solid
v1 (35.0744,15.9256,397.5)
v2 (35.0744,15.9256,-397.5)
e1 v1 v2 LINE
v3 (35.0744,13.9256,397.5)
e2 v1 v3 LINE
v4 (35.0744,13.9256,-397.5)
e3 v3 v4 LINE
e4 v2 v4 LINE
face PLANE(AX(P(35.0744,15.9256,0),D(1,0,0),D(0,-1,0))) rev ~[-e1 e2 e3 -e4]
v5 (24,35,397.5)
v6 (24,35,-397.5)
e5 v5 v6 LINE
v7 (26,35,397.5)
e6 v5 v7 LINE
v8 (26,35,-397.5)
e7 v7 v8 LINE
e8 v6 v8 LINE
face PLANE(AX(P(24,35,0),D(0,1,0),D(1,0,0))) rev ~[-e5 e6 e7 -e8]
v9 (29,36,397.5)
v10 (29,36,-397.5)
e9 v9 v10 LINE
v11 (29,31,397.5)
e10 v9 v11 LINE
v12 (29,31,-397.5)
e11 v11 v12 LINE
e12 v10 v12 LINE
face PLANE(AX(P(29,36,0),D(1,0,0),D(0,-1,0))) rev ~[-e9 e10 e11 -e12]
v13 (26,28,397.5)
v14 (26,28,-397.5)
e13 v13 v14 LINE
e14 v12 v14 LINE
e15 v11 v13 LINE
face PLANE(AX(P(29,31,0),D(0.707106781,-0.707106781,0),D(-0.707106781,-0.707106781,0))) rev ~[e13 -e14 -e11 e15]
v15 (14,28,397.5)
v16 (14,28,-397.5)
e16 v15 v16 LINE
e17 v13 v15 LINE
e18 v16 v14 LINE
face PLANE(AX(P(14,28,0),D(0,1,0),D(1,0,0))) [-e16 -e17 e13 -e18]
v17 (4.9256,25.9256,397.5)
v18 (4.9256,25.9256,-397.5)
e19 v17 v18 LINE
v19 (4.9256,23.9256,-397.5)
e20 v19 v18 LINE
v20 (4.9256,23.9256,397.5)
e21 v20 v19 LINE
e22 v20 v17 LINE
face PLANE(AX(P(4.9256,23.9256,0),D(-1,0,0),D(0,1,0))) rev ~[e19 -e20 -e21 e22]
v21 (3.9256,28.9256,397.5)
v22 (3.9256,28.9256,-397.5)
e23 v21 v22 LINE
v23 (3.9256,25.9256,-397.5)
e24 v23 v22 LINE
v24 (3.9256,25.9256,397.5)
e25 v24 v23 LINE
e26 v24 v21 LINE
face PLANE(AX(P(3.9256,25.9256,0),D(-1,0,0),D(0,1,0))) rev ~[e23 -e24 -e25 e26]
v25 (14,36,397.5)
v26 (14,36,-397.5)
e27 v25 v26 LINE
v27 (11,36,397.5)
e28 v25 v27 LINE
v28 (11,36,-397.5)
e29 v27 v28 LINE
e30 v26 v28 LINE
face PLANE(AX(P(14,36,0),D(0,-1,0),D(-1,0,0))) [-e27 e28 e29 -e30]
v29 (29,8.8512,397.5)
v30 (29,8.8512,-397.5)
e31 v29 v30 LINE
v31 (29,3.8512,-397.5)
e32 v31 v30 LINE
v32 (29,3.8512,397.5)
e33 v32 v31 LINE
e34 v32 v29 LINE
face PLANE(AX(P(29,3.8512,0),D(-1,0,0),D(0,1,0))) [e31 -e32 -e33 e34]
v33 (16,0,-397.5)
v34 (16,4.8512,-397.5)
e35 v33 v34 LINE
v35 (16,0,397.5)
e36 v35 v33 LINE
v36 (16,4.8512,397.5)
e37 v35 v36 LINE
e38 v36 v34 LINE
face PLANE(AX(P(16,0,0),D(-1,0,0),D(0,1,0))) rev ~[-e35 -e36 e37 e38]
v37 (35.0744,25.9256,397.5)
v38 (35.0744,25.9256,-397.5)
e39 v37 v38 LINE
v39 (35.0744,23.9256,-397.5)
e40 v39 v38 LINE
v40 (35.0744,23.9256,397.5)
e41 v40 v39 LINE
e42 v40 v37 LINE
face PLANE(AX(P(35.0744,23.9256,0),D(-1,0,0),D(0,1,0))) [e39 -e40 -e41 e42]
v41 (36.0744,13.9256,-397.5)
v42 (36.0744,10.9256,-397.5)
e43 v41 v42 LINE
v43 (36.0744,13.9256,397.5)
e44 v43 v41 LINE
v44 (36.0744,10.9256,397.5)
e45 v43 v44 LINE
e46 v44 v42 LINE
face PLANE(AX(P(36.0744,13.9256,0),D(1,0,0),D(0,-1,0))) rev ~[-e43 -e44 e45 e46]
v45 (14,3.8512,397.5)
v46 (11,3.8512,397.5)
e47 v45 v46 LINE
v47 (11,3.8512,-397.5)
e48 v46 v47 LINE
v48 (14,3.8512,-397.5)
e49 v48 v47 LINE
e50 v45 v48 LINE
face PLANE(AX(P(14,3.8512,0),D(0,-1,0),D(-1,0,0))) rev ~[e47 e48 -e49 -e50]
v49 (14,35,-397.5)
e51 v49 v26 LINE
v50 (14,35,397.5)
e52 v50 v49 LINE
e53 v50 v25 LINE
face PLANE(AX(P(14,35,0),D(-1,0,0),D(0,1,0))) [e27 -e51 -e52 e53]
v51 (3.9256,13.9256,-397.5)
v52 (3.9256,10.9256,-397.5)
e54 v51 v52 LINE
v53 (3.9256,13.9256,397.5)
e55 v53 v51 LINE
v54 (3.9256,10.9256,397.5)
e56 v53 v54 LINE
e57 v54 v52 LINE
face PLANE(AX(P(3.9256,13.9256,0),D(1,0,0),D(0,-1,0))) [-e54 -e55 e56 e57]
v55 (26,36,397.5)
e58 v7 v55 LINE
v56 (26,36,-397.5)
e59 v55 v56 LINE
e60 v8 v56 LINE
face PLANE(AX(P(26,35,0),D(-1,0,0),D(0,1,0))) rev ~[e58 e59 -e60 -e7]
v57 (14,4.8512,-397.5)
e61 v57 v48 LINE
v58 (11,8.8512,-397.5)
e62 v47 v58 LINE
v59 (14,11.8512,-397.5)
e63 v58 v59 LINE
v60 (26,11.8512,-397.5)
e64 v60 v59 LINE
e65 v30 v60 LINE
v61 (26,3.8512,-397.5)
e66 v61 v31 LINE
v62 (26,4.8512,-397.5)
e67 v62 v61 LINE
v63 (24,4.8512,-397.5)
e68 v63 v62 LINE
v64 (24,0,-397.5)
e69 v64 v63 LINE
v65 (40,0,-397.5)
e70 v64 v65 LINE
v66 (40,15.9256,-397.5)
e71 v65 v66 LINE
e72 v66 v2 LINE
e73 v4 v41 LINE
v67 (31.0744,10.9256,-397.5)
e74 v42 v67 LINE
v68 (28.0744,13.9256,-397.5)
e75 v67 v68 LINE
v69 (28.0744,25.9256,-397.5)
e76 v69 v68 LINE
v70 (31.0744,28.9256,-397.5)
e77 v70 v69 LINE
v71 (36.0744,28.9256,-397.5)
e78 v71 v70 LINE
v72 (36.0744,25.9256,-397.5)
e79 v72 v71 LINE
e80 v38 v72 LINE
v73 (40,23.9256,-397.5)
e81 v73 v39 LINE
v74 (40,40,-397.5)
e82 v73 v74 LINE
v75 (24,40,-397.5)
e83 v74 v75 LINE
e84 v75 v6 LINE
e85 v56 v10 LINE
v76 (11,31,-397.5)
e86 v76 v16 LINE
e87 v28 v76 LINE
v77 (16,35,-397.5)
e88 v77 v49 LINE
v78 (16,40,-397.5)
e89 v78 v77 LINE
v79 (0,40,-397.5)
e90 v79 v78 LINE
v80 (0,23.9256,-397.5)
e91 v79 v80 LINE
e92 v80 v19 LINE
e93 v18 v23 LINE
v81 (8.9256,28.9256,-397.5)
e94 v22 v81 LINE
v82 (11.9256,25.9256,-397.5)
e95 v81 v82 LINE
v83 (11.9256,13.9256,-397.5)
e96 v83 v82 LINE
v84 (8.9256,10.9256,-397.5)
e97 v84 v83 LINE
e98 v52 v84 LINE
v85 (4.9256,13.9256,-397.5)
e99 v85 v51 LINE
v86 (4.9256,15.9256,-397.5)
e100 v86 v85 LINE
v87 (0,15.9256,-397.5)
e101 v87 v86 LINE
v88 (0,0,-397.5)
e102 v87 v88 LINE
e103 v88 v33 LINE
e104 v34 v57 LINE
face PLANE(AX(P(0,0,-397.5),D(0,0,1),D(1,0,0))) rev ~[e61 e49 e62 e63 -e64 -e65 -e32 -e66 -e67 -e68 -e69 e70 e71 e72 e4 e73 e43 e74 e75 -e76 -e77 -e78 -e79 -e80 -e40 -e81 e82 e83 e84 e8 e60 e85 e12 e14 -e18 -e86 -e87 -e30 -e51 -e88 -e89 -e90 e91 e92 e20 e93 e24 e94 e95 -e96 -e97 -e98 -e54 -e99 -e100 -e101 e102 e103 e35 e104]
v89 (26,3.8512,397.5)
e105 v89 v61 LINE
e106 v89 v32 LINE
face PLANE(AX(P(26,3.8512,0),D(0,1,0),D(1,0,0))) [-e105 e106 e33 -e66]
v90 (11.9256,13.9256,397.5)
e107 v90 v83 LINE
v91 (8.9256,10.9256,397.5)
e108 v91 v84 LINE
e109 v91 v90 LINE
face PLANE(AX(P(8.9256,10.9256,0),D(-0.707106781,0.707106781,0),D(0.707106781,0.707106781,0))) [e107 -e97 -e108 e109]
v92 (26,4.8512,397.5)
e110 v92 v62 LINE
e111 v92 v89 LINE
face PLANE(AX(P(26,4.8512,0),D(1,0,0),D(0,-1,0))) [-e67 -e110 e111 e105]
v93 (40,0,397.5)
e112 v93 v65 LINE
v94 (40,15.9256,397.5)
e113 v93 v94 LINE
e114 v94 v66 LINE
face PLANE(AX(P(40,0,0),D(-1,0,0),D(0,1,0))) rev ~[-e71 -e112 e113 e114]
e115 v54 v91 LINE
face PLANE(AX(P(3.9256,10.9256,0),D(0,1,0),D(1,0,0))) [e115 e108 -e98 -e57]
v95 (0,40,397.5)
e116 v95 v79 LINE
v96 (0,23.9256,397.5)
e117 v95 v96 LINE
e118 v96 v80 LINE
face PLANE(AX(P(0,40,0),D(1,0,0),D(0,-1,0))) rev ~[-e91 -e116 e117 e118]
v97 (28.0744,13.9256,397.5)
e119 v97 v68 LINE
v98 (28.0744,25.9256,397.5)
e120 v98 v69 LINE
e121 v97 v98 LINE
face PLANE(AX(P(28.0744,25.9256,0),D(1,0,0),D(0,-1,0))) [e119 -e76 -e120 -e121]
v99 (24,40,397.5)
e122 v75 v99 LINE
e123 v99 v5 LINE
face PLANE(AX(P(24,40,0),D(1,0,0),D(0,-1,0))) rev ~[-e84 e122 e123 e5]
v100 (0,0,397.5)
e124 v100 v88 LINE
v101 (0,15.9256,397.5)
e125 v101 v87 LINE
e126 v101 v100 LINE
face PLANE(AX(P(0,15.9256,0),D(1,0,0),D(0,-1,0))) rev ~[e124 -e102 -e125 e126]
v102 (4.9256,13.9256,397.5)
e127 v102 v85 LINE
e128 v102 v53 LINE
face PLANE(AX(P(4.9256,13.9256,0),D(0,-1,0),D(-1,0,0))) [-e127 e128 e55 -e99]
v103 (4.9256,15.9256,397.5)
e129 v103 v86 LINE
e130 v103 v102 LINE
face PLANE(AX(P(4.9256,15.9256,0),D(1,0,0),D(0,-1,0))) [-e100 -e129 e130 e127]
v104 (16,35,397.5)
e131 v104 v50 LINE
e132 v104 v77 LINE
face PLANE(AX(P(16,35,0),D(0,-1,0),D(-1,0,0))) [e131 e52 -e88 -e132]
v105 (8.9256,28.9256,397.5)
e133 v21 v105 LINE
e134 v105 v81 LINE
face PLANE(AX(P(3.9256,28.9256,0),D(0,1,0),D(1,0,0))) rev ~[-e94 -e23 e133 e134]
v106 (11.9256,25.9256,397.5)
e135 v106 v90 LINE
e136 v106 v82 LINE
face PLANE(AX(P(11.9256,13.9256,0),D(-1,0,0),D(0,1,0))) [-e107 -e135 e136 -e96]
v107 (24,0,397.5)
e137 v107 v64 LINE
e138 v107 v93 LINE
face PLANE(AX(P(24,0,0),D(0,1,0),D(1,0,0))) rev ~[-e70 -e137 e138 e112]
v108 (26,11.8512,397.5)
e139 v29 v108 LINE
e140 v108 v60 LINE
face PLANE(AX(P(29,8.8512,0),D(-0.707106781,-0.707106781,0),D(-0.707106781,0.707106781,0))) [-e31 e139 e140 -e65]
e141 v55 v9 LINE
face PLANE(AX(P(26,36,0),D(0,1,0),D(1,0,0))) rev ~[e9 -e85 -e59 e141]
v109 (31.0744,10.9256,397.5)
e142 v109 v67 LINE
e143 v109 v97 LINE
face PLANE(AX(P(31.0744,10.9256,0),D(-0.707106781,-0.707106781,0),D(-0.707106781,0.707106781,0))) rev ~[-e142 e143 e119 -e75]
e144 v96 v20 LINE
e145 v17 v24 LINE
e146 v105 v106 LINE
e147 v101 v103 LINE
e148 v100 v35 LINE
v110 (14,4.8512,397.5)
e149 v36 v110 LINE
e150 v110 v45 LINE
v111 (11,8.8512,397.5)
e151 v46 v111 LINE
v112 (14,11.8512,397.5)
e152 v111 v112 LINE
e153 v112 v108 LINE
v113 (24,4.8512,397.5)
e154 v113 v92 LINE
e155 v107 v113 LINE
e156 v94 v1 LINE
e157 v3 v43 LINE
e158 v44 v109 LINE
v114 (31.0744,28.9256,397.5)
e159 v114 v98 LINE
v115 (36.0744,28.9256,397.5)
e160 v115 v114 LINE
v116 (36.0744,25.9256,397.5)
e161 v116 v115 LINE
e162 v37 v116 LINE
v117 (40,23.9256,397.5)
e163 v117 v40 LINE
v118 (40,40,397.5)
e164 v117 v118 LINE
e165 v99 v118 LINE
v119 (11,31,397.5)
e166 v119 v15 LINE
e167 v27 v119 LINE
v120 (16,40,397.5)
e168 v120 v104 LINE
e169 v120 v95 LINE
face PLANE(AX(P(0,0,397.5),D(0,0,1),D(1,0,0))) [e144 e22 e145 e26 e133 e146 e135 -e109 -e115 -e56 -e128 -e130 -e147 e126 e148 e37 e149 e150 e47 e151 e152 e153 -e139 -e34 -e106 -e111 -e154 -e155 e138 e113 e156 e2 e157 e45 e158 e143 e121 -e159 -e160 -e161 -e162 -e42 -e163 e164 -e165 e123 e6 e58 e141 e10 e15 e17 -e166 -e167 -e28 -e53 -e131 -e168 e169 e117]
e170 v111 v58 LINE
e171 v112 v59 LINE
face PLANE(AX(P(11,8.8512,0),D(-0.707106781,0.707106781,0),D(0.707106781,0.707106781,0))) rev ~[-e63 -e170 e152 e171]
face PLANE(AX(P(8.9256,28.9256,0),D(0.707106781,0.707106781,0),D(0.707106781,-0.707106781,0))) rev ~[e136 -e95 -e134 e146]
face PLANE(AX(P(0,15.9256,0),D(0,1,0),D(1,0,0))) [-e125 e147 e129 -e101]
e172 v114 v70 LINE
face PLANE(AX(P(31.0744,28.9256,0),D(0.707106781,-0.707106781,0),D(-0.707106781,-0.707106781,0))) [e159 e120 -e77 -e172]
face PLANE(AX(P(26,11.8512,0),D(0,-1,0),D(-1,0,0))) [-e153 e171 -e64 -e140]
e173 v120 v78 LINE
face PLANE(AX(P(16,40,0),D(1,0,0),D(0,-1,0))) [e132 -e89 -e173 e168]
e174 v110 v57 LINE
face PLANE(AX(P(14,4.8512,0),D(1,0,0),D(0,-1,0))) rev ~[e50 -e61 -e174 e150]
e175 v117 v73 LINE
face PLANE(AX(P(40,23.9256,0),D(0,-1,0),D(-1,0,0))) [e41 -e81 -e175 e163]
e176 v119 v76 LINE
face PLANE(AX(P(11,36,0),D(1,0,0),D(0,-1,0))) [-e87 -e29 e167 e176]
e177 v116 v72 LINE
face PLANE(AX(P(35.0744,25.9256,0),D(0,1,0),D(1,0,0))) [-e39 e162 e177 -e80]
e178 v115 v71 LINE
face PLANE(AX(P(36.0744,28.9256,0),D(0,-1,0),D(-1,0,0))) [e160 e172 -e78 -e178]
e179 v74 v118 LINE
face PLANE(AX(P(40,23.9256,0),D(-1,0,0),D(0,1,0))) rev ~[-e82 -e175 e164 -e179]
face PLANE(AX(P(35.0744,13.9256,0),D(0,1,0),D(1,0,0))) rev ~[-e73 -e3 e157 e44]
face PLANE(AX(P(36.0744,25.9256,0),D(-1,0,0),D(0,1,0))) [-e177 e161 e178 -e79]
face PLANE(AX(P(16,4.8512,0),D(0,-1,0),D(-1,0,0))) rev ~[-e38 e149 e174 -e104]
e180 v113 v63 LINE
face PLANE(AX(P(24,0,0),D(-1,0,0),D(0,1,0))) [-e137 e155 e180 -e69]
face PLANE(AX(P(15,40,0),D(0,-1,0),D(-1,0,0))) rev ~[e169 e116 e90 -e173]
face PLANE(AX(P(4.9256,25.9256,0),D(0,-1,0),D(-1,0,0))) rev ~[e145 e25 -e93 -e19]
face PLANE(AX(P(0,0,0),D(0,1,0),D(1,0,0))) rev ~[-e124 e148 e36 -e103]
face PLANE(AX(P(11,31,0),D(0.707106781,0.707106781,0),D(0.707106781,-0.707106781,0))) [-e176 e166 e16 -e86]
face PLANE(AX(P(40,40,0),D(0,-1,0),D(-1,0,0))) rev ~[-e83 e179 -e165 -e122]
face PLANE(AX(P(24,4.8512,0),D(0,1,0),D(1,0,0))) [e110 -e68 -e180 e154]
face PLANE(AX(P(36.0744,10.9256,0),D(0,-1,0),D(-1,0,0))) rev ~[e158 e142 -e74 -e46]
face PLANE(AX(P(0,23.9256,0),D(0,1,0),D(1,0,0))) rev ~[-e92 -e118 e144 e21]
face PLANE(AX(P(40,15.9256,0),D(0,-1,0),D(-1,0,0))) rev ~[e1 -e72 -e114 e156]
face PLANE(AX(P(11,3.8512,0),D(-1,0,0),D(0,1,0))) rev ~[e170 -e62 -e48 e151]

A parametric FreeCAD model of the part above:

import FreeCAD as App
import Part
import Sketcher

V = App.Vector
Q = App.Units.Quantity


def add_polygon(sketch, points):
    """Adds a closed chain of lines whose ends are joined by coincident constraints."""
    first, n = sketch.GeometryCount, len(points)
    for a, b in zip(points, points[1:] + points[:1]):
        sketch.addGeometry(Part.LineSegment(App.Vector(*a, 0), App.Vector(*b, 0)), False)
    for i in range(n):
        sketch.addConstraint(Sketcher.Constraint("Coincident", first + i, 2, first + (i + 1) % n, 1))

doc = App.newDocument("Part")
body = doc.addObject("PartDesign::Body", "Body")

# Sketch on XY plane
sketch1 = doc.addObject("Sketcher::SketchObject", "Sketch")
body.addObject(sketch1)
sketch1.AttachmentSupport = (doc.XY_Plane, [""])
sketch1.MapMode = "FlatFace"
add_polygon(sketch1, [(40, 23.9), (40, 40), (24, 40), (24, 35), (26, 35), (26, 36), (29, 36), (29, 31), (26, 28), (14, 28), (11, 31), (11, 36), (14, 36), (14, 35), (16, 35), (16, 40), (0, 40), (0, 23.9), (4.9, 23.9), (4.9, 25.9), (3.9, 25.9), (3.9, 28.9), (8.9, 28.9), (11.9, 25.9), (11.9, 13.9), (8.9, 10.9), (3.9, 10.9), (3.9, 13.9), (4.9, 13.9), (4.9, 15.9), (0, 15.9), (0, 0), (16, 0), (16, 4.9), (14, 4.9), (14, 3.9), (11, 3.9), (11, 8.9), (14, 11.9), (26, 11.9), (29, 8.9), (29, 3.9), (26, 3.9), (26, 4.9), (24, 4.9), (24, 0), (40, 0), (40, 15.9), (35.1, 15.9), (35.1, 13.9), (36.1, 13.9), (36.1, 10.9), (31.1, 10.9), (28.1, 13.9), (28.1, 25.9), (31.1, 28.9), (36.1, 28.9), (36.1, 25.9), (35.1, 25.9), (35.1, 23.9)])  # lines 0-59
sketch1.addConstraint([
    Sketcher.Constraint("Vertical", 0),
    Sketcher.Constraint("Horizontal", 1),
    Sketcher.Constraint("Vertical", 2),
    Sketcher.Constraint("Horizontal", 3),
    Sketcher.Constraint("Vertical", 4),
    Sketcher.Constraint("Horizontal", 5),
    Sketcher.Constraint("Vertical", 6),
    Sketcher.Constraint("Horizontal", 8),
    Sketcher.Constraint("Vertical", 10),
    Sketcher.Constraint("Horizontal", 11),
    Sketcher.Constraint("Vertical", 12),
    Sketcher.Constraint("Horizontal", 13),
    Sketcher.Constraint("Vertical", 14),
    Sketcher.Constraint("Horizontal", 15),
    Sketcher.Constraint("Vertical", 16),
    Sketcher.Constraint("Horizontal", 17),
    Sketcher.Constraint("Vertical", 18),
    Sketcher.Constraint("Horizontal", 19),
    Sketcher.Constraint("Vertical", 20),
    Sketcher.Constraint("Horizontal", 21),
    Sketcher.Constraint("Vertical", 23),
    Sketcher.Constraint("Horizontal", 25),
    Sketcher.Constraint("Vertical", 26),
    Sketcher.Constraint("Horizontal", 27),
    Sketcher.Constraint("Vertical", 28),
    Sketcher.Constraint("Horizontal", 29),
    Sketcher.Constraint("Vertical", 30),
    Sketcher.Constraint("Horizontal", 31),
    Sketcher.Constraint("Vertical", 32),
    Sketcher.Constraint("Horizontal", 33),
    Sketcher.Constraint("Vertical", 34),
    Sketcher.Constraint("Horizontal", 35),
    Sketcher.Constraint("Vertical", 36),
    Sketcher.Constraint("Horizontal", 38),
    Sketcher.Constraint("Vertical", 40),
    Sketcher.Constraint("Horizontal", 41),
    Sketcher.Constraint("Vertical", 42),
    Sketcher.Constraint("Horizontal", 43),
    Sketcher.Constraint("Vertical", 44),
    Sketcher.Constraint("Horizontal", 45),
    Sketcher.Constraint("Vertical", 46),
    Sketcher.Constraint("Horizontal", 47),
    Sketcher.Constraint("Vertical", 48),
    Sketcher.Constraint("Horizontal", 49),
    Sketcher.Constraint("Vertical", 50),
    Sketcher.Constraint("Horizontal", 51),
    Sketcher.Constraint("Vertical", 53),
    Sketcher.Constraint("Horizontal", 55),
    Sketcher.Constraint("Vertical", 56),
    Sketcher.Constraint("Horizontal", 57),
    Sketcher.Constraint("Vertical", 58),
    Sketcher.Constraint("Horizontal", 59),
    Sketcher.Constraint("Coincident", 30, 2, -1, 1),
    Sketcher.Constraint("PointOnObject", 15, 2, -2),
    Sketcher.Constraint("PointOnObject", 44, 2, -1),
    Sketcher.Constraint("Perpendicular", 7, 9),
    Sketcher.Constraint("Parallel", 9, 22),
    Sketcher.Constraint("Perpendicular", 22, 24),
    Sketcher.Constraint("Parallel", 24, 37),
    Sketcher.Constraint("Perpendicular", 37, 39),
    Sketcher.Constraint("Parallel", 39, 52),
    Sketcher.Constraint("Perpendicular", 52, 54),
    Sketcher.Constraint("Horizontal", 6, 2, 9, 2),
    Sketcher.Constraint("Horizontal", 5, 2, 10, 2),
    Sketcher.Constraint("Horizontal", 3, 2, 12, 2),
    Sketcher.Constraint("Horizontal", 1, 2, 14, 2),
    Sketcher.Constraint("Horizontal", 19, 2, 22, 2),
    Sketcher.Constraint("Horizontal", 23, 2, 26, 2),
    Sketcher.Constraint("Horizontal", 36, 2, 39, 2),
    Sketcher.Constraint("Horizontal", 35, 2, 40, 2),
    Sketcher.Constraint("Horizontal", 33, 2, 42, 2),
    Sketcher.Constraint("Horizontal", 29, 2, 46, 2),
    Sketcher.Constraint("Horizontal", 27, 2, 48, 2),
    Sketcher.Constraint("Horizontal", 25, 2, 50, 2),
    Sketcher.Constraint("Horizontal", 49, 2, 52, 2),
    Sketcher.Constraint("Horizontal", 22, 2, 53, 2),
    Sketcher.Constraint("Horizontal", 21, 2, 54, 2),
    Sketcher.Constraint("Horizontal", 53, 2, 56, 2),
    Sketcher.Constraint("Horizontal", 17, 2, 58, 2),
    Sketcher.Constraint("Vertical", 4, 2, 7, 2),
    Sketcher.Constraint("Vertical", 8, 2, 11, 2),
    Sketcher.Constraint("Vertical", 21, 2, 24, 2),
    Sketcher.Constraint("Vertical", 20, 2, 25, 2),
    Sketcher.Constraint("Vertical", 18, 2, 27, 2),
    Sketcher.Constraint("Vertical", 14, 2, 31, 2),
    Sketcher.Constraint("Vertical", 12, 2, 33, 2),
    Sketcher.Constraint("Vertical", 10, 2, 35, 2),
    Sketcher.Constraint("Vertical", 34, 2, 37, 2),
    Sketcher.Constraint("Vertical", 7, 2, 38, 2),
    Sketcher.Constraint("Vertical", 6, 2, 39, 2),
    Sketcher.Constraint("Vertical", 38, 2, 41, 2),
    Sketcher.Constraint("Vertical", 2, 2, 43, 2),
    Sketcher.Constraint("Vertical", 0, 2, 45, 2),
    Sketcher.Constraint("Vertical", 50, 2, 55, 2),
    Sketcher.Constraint("Vertical", 48, 2, 57, 2),
    Sketcher.Constraint("Equal", 3, 13),
    Sketcher.Constraint("Equal", 1, 15),
    Sketcher.Constraint("Equal", 29, 47),
    Sketcher.Constraint("Equal", 27, 49),
    Sketcher.Constraint("Equal", 25, 51),
    Sketcher.Constraint("Equal", 55, 2),
    Sketcher.Constraint("Equal", 57, 4),
    Sketcher.Constraint("Equal", 2, 6),
    Sketcher.Constraint("Equal", 43, 18),
    Sketcher.Constraint("Equal", 41, 20),
    Sketcher.Constraint("Equal", 38, 23),
    Sketcher.Constraint("Equal", 18, 28),
    Sketcher.Constraint("Equal", 12, 34),
    Sketcher.Constraint("Equal", 14, 36),
    Sketcher.Constraint("DistanceX", 3, 1, 3, 2, Q("2 mm")),
    Sketcher.Constraint("DistanceX", 5, 1, 5, 2, Q("3 mm")),
    Sketcher.Constraint("DistanceX", 19, 2, 19, 1, Q("1 mm")),
    Sketcher.Constraint("DistanceX", 21, 1, 21, 2, Q("5 mm")),
    Sketcher.Constraint("DistanceX", -1, 1, 0, 2, Q("40 mm")),
    Sketcher.Constraint("DistanceY", -1, 1, 0, 2, Q("40 mm")),
    Sketcher.Constraint("DistanceX", 1, 2, 1, 1, Q("16 mm")),
    Sketcher.Constraint("DistanceX", 17, 1, 17, 2, Q("4.9256 mm")),
    Sketcher.Constraint("DistanceY", 0, 1, 0, 2, Q("16.0744 mm")),
    Sketcher.Constraint("DistanceY", 32, 1, 32, 2, Q("4.8512 mm")),
])
pad1 = doc.addObject("PartDesign::Pad", "Pad")
body.addObject(pad1)
pad1.Profile = sketch1
pad1.Length = 795
pad1.Midplane = True

doc.recompute()
